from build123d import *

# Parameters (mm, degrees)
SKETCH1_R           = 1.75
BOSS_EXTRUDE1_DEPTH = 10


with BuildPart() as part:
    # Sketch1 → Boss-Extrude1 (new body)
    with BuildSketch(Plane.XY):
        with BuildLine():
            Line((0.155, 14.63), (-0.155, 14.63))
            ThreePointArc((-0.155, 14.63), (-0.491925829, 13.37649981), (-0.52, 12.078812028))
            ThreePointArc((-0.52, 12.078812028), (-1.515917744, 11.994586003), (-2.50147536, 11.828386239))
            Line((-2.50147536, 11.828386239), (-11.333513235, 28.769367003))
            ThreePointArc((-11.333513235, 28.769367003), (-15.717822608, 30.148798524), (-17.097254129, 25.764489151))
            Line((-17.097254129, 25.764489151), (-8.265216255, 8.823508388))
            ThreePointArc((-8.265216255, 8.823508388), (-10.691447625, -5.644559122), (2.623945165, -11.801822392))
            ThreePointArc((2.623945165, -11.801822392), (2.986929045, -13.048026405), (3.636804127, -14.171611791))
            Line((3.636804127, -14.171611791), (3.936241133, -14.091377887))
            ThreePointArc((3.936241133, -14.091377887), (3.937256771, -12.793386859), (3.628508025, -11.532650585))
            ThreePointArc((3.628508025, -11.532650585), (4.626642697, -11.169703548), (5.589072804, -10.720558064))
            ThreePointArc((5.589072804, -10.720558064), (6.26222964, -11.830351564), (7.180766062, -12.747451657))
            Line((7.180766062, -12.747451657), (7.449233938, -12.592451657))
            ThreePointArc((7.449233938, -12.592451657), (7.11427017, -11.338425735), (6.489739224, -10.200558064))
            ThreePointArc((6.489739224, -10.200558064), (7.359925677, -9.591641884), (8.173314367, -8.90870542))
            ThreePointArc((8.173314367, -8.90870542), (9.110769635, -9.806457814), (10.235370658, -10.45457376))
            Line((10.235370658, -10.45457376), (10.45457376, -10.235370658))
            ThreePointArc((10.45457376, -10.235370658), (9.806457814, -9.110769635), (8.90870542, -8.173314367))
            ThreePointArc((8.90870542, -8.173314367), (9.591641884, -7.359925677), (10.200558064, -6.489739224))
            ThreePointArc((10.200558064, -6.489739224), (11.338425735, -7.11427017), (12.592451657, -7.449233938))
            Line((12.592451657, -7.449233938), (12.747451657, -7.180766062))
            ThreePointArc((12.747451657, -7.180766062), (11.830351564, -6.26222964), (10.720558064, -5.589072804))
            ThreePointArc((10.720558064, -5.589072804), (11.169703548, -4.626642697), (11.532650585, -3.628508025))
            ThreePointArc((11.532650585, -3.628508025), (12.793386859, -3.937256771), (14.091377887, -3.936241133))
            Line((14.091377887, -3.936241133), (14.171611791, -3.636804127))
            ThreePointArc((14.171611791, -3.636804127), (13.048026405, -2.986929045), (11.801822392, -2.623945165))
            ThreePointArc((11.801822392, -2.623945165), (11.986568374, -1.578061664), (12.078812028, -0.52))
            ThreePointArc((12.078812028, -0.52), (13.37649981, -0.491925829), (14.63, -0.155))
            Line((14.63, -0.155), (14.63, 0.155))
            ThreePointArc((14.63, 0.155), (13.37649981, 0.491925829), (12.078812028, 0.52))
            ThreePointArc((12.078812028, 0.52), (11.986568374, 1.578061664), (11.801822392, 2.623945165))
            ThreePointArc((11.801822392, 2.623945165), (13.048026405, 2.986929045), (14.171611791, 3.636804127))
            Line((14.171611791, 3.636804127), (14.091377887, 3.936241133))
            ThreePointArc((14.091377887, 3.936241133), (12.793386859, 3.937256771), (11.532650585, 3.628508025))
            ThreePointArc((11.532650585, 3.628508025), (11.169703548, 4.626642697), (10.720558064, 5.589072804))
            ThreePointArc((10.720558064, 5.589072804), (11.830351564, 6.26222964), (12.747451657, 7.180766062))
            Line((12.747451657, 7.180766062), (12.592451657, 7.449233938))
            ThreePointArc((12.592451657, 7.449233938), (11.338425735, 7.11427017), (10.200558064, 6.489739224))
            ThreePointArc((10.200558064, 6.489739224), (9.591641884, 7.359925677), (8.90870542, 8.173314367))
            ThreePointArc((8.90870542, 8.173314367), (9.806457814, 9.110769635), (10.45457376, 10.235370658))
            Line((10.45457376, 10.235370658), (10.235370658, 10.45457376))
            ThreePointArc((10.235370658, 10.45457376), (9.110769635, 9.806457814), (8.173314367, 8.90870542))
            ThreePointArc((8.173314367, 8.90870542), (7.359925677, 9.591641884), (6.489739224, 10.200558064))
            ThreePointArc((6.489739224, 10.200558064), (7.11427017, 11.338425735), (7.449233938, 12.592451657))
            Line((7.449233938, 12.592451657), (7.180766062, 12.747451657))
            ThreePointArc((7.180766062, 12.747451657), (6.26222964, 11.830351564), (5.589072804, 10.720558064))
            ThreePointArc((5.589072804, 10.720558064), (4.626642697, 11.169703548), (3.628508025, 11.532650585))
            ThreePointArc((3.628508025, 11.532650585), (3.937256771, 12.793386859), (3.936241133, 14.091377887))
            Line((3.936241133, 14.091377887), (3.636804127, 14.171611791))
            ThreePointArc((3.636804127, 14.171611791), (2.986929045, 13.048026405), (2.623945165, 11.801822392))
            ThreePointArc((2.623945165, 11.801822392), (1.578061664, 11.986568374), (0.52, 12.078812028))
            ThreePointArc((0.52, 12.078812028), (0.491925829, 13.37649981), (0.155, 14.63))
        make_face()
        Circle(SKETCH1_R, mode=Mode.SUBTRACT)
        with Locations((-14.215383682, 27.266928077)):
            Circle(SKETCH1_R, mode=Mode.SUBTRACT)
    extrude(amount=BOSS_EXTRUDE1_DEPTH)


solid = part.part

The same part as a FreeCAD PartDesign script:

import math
import FreeCAD as App
import Part
import Sketcher

V = App.Vector
Q = App.Units.Quantity

doc = App.newDocument("Part")
body = doc.addObject("PartDesign::Body", "Body")

sketch1 = body.newObject("Sketcher::SketchObject", "Sketch")
sketch1.AttachmentSupport = (doc.getObject("XY_Plane"), [""])
sketch1.MapMode = "FlatFace"
sketch1.addGeometry([
    Part.LineSegment(V(0.15, 14.63, 0), V(-0.15, 14.63, 0)),
    Part.ArcOfCircle(Part.Circle(V(4.85, 12.61, 0), V(0, 0, 1), 5.4), math.radians(158), math.radians(186)),
    Part.ArcOfCircle(Part.Circle(V(0, 0, 0), V(0, 0, 1), 12.09), math.radians(92.47), math.radians(101.94)),
    Part.LineSegment(V(-2.5, 11.83, 0), V(-11.33, 28.77, 0)),
    Part.ArcOfCircle(Part.Circle(V(-14.22, 27.27, 0), V(0, 0, 1), 3.25), math.radians(28), math.radians(208)),
    Part.LineSegment(V(-17.1, 25.76, 0), V(-8.27, 8.82, 0)),
    Part.ArcOfCircle(Part.Circle(V(0, 0, 0), V(0, 0, 1), 12.09), math.radians(133), math.radians(283)),
    Part.ArcOfCircle(Part.Circle(V(7.95, -10.93, 0), V(0, 0, 1), 5.4), math.radians(-171), math.radians(-143)),
    Part.LineSegment(V(3.64, -14.17, 0), V(3.94, -14.09, 0)),
    Part.ArcOfCircle(Part.Circle(V(-1.42, -13.44, 0), V(0, 0, 1), 5.4), math.radians(-7), math.radians(21)),
    Part.ArcOfCircle(Part.Circle(V(0, 0, 0), V(0, 0, 1), 12.09), math.radians(-72.53), math.radians(-62.47)),
    Part.ArcOfCircle(Part.Circle(V(10.51, -8.5, 0), V(0, 0, 1), 5.4), math.radians(-156), math.radians(-128)),
    Part.LineSegment(V(7.18, -12.75, 0), V(7.45, -12.59, 0)),
    Part.ArcOfCircle(Part.Circle(V(2.1, -13.35, 0), V(0, 0, 1), 5.4), math.radians(8), math.radians(36)),
    Part.ArcOfCircle(Part.Circle(V(0, 0, 0), V(0, 0, 1), 12.09), math.radians(-57.53), math.radians(-47.47)),
    Part.ArcOfCircle(Part.Circle(V(12.35, -5.49, 0), V(0, 0, 1), 5.4), math.radians(-141), math.radians(-113)),
    Part.LineSegment(V(10.24, -10.45, 0), V(10.45, -10.24, 0)),
    Part.ArcOfCircle(Part.Circle(V(5.49, -12.35, 0), V(0, 0, 1), 5.4), math.radians(23), math.radians(51)),
    Part.ArcOfCircle(Part.Circle(V(0, 0, 0), V(0, 0, 1), 12.09), math.radians(-42.53), math.radians(-32.47)),
    Part.ArcOfCircle(Part.Circle(V(13.35, -2.1, 0), V(0, 0, 1), 5.4), math.radians(-126), math.radians(-98)),
    Part.LineSegment(V(12.59, -7.45, 0), V(12.75, -7.18, 0)),
    Part.ArcOfCircle(Part.Circle(V(8.5, -10.51, 0), V(0, 0, 1), 5.4), math.radians(38), math.radians(66)),
    Part.ArcOfCircle(Part.Circle(V(0, 0, 0), V(0, 0, 1), 12.09), math.radians(-27.53), math.radians(-17.47)),
    Part.ArcOfCircle(Part.Circle(V(13.44, 1.42, 0), V(0, 0, 1), 5.4), math.radians(-111), math.radians(-83)),
    Part.LineSegment(V(14.09, -3.94, 0), V(14.17, -3.64, 0)),
    Part.ArcOfCircle(Part.Circle(V(10.93, -7.95, 0), V(0, 0, 1), 5.4), math.radians(53), math.radians(81)),
    Part.ArcOfCircle(Part.Circle(V(0, 0, 0), V(0, 0, 1), 12.09), math.radians(-12.53), math.radians(-2.47)),
    Part.ArcOfCircle(Part.Circle(V(12.61, 4.85, 0), V(0, 0, 1), 5.4), math.radians(-96), math.radians(-68)),
    Part.LineSegment(V(14.63, -0.15, 0), V(14.63, 0.15, 0)),
    Part.ArcOfCircle(Part.Circle(V(12.61, -4.85, 0), V(0, 0, 1), 5.4), math.radians(68), math.radians(96)),
    Part.ArcOfCircle(Part.Circle(V(0, 0, 0), V(0, 0, 1), 12.09), math.radians(2.47), math.radians(12.53)),
    Part.ArcOfCircle(Part.Circle(V(10.93, 7.95, 0), V(0, 0, 1), 5.4), math.radians(-81), math.radians(-53)),
    Part.LineSegment(V(14.17, 3.64, 0), V(14.09, 3.94, 0)),
    Part.ArcOfCircle(Part.Circle(V(13.44, -1.42, 0), V(0, 0, 1), 5.4), math.radians(83), math.radians(111)),
    Part.ArcOfCircle(Part.Circle(V(0, 0, 0), V(0, 0, 1), 12.09), math.radians(17.47), math.radians(27.53)),
    Part.ArcOfCircle(Part.Circle(V(8.5, 10.51, 0), V(0, 0, 1), 5.4), math.radians(-66), math.radians(-38)),
    Part.LineSegment(V(12.75, 7.18, 0), V(12.59, 7.45, 0)),
    Part.ArcOfCircle(Part.Circle(V(13.35, 2.1, 0), V(0, 0, 1), 5.4), math.radians(98), math.radians(126)),
    Part.ArcOfCircle(Part.Circle(V(0, 0, 0), V(0, 0, 1), 12.09), math.radians(32.47), math.radians(42.53)),
    Part.ArcOfCircle(Part.Circle(V(5.49, 12.35, 0), V(0, 0, 1), 5.4), math.radians(-51), math.radians(-23)),
    Part.LineSegment(V(10.45, 10.24, 0), V(10.24, 10.45, 0)),
    Part.ArcOfCircle(Part.Circle(V(12.35, 5.49, 0), V(0, 0, 1), 5.4), math.radians(113), math.radians(141)),
    Part.ArcOfCircle(Part.Circle(V(0, 0, 0), V(0, 0, 1), 12.09), math.radians(47.47), math.radians(57.53)),
    Part.ArcOfCircle(Part.Circle(V(2.1, 13.35, 0), V(0, 0, 1), 5.4), math.radians(-36), math.radians(-8)),
    Part.LineSegment(V(7.45, 12.59, 0), V(7.18, 12.75, 0)),
    Part.ArcOfCircle(Part.Circle(V(10.51, 8.5, 0), V(0, 0, 1), 5.4), math.radians(128), math.radians(156)),
    Part.ArcOfCircle(Part.Circle(V(0, 0, 0), V(0, 0, 1), 12.09), math.radians(62.47), math.radians(72.53)),
    Part.ArcOfCircle(Part.Circle(V(-1.42, 13.44, 0), V(0, 0, 1), 5.4), math.radians(-21), math.radians(7)),
    Part.LineSegment(V(3.94, 14.09, 0), V(3.64, 14.17, 0)),
    Part.ArcOfCircle(Part.Circle(V(7.95, 10.93, 0), V(0, 0, 1), 5.4), math.radians(143), math.radians(171)),
    Part.ArcOfCircle(Part.Circle(V(0, 0, 0), V(0, 0, 1), 12.09), math.radians(77.47), math.radians(87.53)),
    Part.ArcOfCircle(Part.Circle(V(-4.85, 12.61, 0), V(0, 0, 1), 5.4), math.radians(-6), math.radians(22)),
    Part.Circle(V(0, 0, 0), V(0, 0, 1), 1.75),
    Part.Circle(V(-14.22, 27.27, 0), V(0, 0, 1), 1.75),
], False)
sketch1.addConstraint([
    Sketcher.Constraint("Coincident", 0, 2, 1, 1),
    Sketcher.Constraint("Coincident", 1, 2, 2, 1),
    Sketcher.Constraint("Coincident", 2, 2, 3, 1),
    Sketcher.Constraint("Tangent", 3, 2, 4, 1),
    Sketcher.Constraint("Tangent", 4, 2, 5, 1),
    Sketcher.Constraint("Coincident", 5, 2, 6, 1),
    Sketcher.Constraint("Coincident", 6, 2, 7, 1),
    Sketcher.Constraint("Coincident", 7, 2, 8, 1),
    Sketcher.Constraint("Coincident", 8, 2, 9, 1),
    Sketcher.Constraint("Coincident", 9, 2, 10, 1),
    Sketcher.Constraint("Coincident", 10, 2, 11, 1),
    Sketcher.Constraint("Coincident", 11, 2, 12, 1),
    Sketcher.Constraint("Coincident", 12, 2, 13, 1),
    Sketcher.Constraint("Coincident", 13, 2, 14, 1),
    Sketcher.Constraint("Coincident", 14, 2, 15, 1),
    Sketcher.Constraint("Coincident", 15, 2, 16, 1),
    Sketcher.Constraint("Coincident", 16, 2, 17, 1),
    Sketcher.Constraint("Coincident", 17, 2, 18, 1),
    Sketcher.Constraint("Coincident", 18, 2, 19, 1),
    Sketcher.Constraint("Coincident", 19, 2, 20, 1),
    Sketcher.Constraint("Coincident", 20, 2, 21, 1),
    Sketcher.Constraint("Coincident", 21, 2, 22, 1),
    Sketcher.Constraint("Coincident", 22, 2, 23, 1),
    Sketcher.Constraint("Coincident", 23, 2, 24, 1),
    Sketcher.Constraint("Coincident", 24, 2, 25, 1),
    Sketcher.Constraint("Coincident", 25, 2, 26, 1),
    Sketcher.Constraint("Coincident", 26, 2, 27, 1),
    Sketcher.Constraint("Coincident", 27, 2, 28, 1),
    Sketcher.Constraint("Coincident", 28, 2, 29, 1),
    Sketcher.Constraint("Coincident", 29, 2, 30, 1),
    Sketcher.Constraint("Coincident", 30, 2, 31, 1),
    Sketcher.Constraint("Coincident", 31, 2, 32, 1),
    Sketcher.Constraint("Coincident", 32, 2, 33, 1),
    Sketcher.Constraint("Coincident", 33, 2, 34, 1),
    Sketcher.Constraint("Coincident", 34, 2, 35, 1),
    Sketcher.Constraint("Coincident", 35, 2, 36, 1),
    Sketcher.Constraint("Coincident", 36, 2, 37, 1),
    Sketcher.Constraint("Coincident", 37, 2, 38, 1),
    Sketcher.Constraint("Coincident", 38, 2, 39, 1),
    Sketcher.Constraint("Coincident", 39, 2, 40, 1),
    Sketcher.Constraint("Coincident", 40, 2, 41, 1),
    Sketcher.Constraint("Coincident", 41, 2, 42, 1),
    Sketcher.Constraint("Coincident", 42, 2, 43, 1),
    Sketcher.Constraint("Coincident", 43, 2, 44, 1),
    Sketcher.Constraint("Coincident", 44, 2, 45, 1),
    Sketcher.Constraint("Coincident", 45, 2, 46, 1),
    Sketcher.Constraint("Coincident", 46, 2, 47, 1),
    Sketcher.Constraint("Coincident", 47, 2, 48, 1),
    Sketcher.Constraint("Coincident", 48, 2, 49, 1),
    Sketcher.Constraint("Coincident", 49, 2, 50, 1),
    Sketcher.Constraint("Coincident", 50, 2, 51, 1),
    Sketcher.Constraint("Coincident", 51, 2, 0, 1),
    Sketcher.Constraint("Horizontal", 0),
    Sketcher.Constraint("Vertical", 28),
    Sketcher.Constraint("Coincident", 2, 3, -1, 1),
    Sketcher.Constraint("Coincident", 6, 3, -1, 1),
    Sketcher.Constraint("Coincident", 10, 3, -1, 1),
    Sketcher.Constraint("Coincident", 14, 3, -1, 1),
    Sketcher.Constraint("Coincident", 18, 3, -1, 1),
    Sketcher.Constraint("Coincident", 22, 3, -1, 1),
    Sketcher.Constraint("Coincident", 26, 3, -1, 1),
    Sketcher.Constraint("Coincident", 30, 3, -1, 1),
    Sketcher.Constraint("Coincident", 34, 3, -1, 1),
    Sketcher.Constraint("Coincident", 38, 3, -1, 1),
    Sketcher.Constraint("Coincident", 42, 3, -1, 1),
    Sketcher.Constraint("Coincident", 46, 3, -1, 1),
    Sketcher.Constraint("Coincident", 50, 3, -1, 1),
    Sketcher.Constraint("Coincident", 52, 3, -1, 1),
    Sketcher.Constraint("Coincident", 53, 3, 4, 3),
    Sketcher.Constraint("Equal", 2, 6),
    Sketcher.Constraint("Equal", 1, 7),
    Sketcher.Constraint("Equal", 7, 9),
    Sketcher.Constraint("Equal", 6, 10),
    Sketcher.Constraint("Equal", 9, 11),
    Sketcher.Constraint("Equal", 11, 13),
    Sketcher.Constraint("Equal", 10, 14),
    Sketcher.Constraint("Equal", 13, 15),
    Sketcher.Constraint("Equal", 15, 17),
    Sketcher.Constraint("Equal", 14, 18),
    Sketcher.Constraint("Equal", 17, 19),
    Sketcher.Constraint("Equal", 19, 21),
    Sketcher.Constraint("Equal", 18, 22),
    Sketcher.Constraint("Equal", 21, 23),
    Sketcher.Constraint("Equal", 23, 25),
    Sketcher.Constraint("Equal", 22, 26),
    Sketcher.Constraint("Equal", 25, 27),
    Sketcher.Constraint("Equal", 27, 29),
    Sketcher.Constraint("Equal", 26, 30),
    Sketcher.Constraint("Equal", 29, 31),
    Sketcher.Constraint("Equal", 31, 33),
    Sketcher.Constraint("Equal", 30, 34),
    Sketcher.Constraint("Equal", 33, 35),
    Sketcher.Constraint("Equal", 35, 37),
    Sketcher.Constraint("Equal", 34, 38),
    Sketcher.Constraint("Equal", 37, 39),
    Sketcher.Constraint("Equal", 39, 41),
    Sketcher.Constraint("Equal", 38, 42),
    Sketcher.Constraint("Equal", 41, 43),
    Sketcher.Constraint("Equal", 43, 45),
    Sketcher.Constraint("Equal", 42, 46),
    Sketcher.Constraint("Equal", 45, 47),
    Sketcher.Constraint("Equal", 47, 49),
    Sketcher.Constraint("Equal", 46, 50),
    Sketcher.Constraint("Equal", 49, 51),
    Sketcher.Constraint("Equal", 52, 53),
    Sketcher.Constraint("Symmetric", 1, 3, 51, 3, -2),
    Sketcher.Constraint("Symmetric", 27, 3, 29, 3, -1),
    Sketcher.Constraint("Symmetric", 25, 3, 31, 3, -1),
    Sketcher.Constraint("Symmetric", 23, 3, 33, 3, -1),
    Sketcher.Constraint("Symmetric", 21, 3, 35, 3, -1),
    Sketcher.Constraint("Symmetric", 19, 3, 37, 3, -1),
    Sketcher.Constraint("Symmetric", 17, 3, 39, 3, -1),
    Sketcher.Constraint("Symmetric", 15, 3, 41, 3, -1),
    Sketcher.Constraint("Symmetric", 13, 3, 43, 3, -1),
    Sketcher.Constraint("Symmetric", 11, 3, 45, 3, -1),
    Sketcher.Constraint("Symmetric", 9, 3, 47, 3, -1),
    Sketcher.Constraint("Symmetric", 7, 3, 49, 3, -1),
    Sketcher.Constraint("Parallel", 3, 5),
    Sketcher.Constraint("Perpendicular", 8, 32),
    Sketcher.Constraint("Perpendicular", 12, 36),
    Sketcher.Constraint("Perpendicular", 16, 40),
    Sketcher.Constraint("Perpendicular", 20, 44),
    Sketcher.Constraint("Perpendicular", 24, 48),
    Sketcher.Constraint("Vertical", 24, 2, 31, 2),
    Sketcher.Constraint("Vertical", 23, 2, 32, 2),
    Sketcher.Constraint("Vertical", 20, 2, 35, 2),
    Sketcher.Constraint("Vertical", 19, 2, 36, 2),
    Sketcher.Constraint("Vertical", 16, 2, 39, 2),
    Sketcher.Constraint("Vertical", 15, 2, 40, 2),
    Sketcher.Constraint("Vertical", 12, 2, 43, 2),
    Sketcher.Constraint("Vertical", 8, 2, 47, 2),
    Sketcher.Constraint("Equal", 0, 28),
    Sketcher.Constraint("Equal", 3, 5),
    Sketcher.Constraint("Equal", 8, 12),
    Sketcher.Constraint("Equal", 12, 16),
    Sketcher.Constraint("Equal", 16, 20),
    Sketcher.Constraint("Equal", 20, 24),
    Sketcher.Constraint("Diameter", 52, 3.5),
    Sketcher.Constraint("Radius", 1, 5.4),
    Sketcher.Constraint("Angle", 8, Q("15 deg")),
    Sketcher.Constraint("Angle", 12, Q("30 deg")),
    Sketcher.Constraint("Radius", 2, 12.09),
    Sketcher.Constraint("Radius", 4, 3.25),
    Sketcher.Constraint("DistanceX", 0, 2, 0, 1, 0.31),
    Sketcher.Constraint("Distance", 8, 0.31),
    Sketcher.Constraint("DistanceY", -1, 1, 0, 2, 14.63),
    Sketcher.Constraint("DistanceX", 1, 2, -1, 1, 0.52),
    Sketcher.Constraint("DistanceY", 26, 2, -1, 1, 0.52),
    Sketcher.Constraint("DistanceX", -1, 1, 27, 2, 14.63),
    Sketcher.Constraint("Distance", 3, 19.105018),
    Sketcher.Constraint("DistanceY", -1, 1, 4, 3, 27.266928),
    Sketcher.Constraint("DistanceX", -1, 1, 11, 3, 10.50923),
    Sketcher.Constraint("DistanceY", 13, 3, -1, 1, 13.348879),
    Sketcher.Constraint("DistanceY", 15, 3, -1, 1, 5.48578),
    Sketcher.Constraint("DistanceX", -1, 1, 17, 3, 5.48578),
    Sketcher.Constraint("DistanceX", -1, 1, 19, 3, 13.348879),
    Sketcher.Constraint("DistanceY", 21, 3, -1, 1, 10.50923),
    Sketcher.Constraint("DistanceY", 7, 2, -1, 1, 14.171612),
    Sketcher.Constraint("DistanceX", -1, 1, 8, 2, 3.936241),
    Sketcher.Constraint("DistanceX", -1, 1, 9, 2, 3.628508),
    Sketcher.Constraint("DistanceY", 10, 2, -1, 1, 10.720558),
    Sketcher.Constraint("DistanceY", 11, 2, -1, 1, 12.747452),
    Sketcher.Constraint("DistanceX", -1, 1, 15, 2, 10.235371),
    Sketcher.Constraint("DistanceY", 16, 2, -1, 1, 10.235371),
    Sketcher.Constraint("DistanceX", -1, 1, 18, 2, 10.200558),
    Sketcher.Constraint("DistanceX", -1, 1, 19, 2, 12.592452),
    Sketcher.Constraint("DistanceX", -1, 1, 22, 2, 11.532651),
    Sketcher.Constraint("DistanceY", 23, 2, -1, 1, 3.936241),
    Sketcher.Constraint("DistanceX", -1, 1, 24, 2, 14.171612),
    Sketcher.Constraint("DistanceX", -1, 1, 7, 3, 7.952408),
    Sketcher.Constraint("DistanceX", -1, 1, 25, 3, 10.925758),
])
pad1 = body.newObject("PartDesign::Pad", "Pad")
pad1.Profile = sketch1
pad1.Length = 10

doc.recompute()
